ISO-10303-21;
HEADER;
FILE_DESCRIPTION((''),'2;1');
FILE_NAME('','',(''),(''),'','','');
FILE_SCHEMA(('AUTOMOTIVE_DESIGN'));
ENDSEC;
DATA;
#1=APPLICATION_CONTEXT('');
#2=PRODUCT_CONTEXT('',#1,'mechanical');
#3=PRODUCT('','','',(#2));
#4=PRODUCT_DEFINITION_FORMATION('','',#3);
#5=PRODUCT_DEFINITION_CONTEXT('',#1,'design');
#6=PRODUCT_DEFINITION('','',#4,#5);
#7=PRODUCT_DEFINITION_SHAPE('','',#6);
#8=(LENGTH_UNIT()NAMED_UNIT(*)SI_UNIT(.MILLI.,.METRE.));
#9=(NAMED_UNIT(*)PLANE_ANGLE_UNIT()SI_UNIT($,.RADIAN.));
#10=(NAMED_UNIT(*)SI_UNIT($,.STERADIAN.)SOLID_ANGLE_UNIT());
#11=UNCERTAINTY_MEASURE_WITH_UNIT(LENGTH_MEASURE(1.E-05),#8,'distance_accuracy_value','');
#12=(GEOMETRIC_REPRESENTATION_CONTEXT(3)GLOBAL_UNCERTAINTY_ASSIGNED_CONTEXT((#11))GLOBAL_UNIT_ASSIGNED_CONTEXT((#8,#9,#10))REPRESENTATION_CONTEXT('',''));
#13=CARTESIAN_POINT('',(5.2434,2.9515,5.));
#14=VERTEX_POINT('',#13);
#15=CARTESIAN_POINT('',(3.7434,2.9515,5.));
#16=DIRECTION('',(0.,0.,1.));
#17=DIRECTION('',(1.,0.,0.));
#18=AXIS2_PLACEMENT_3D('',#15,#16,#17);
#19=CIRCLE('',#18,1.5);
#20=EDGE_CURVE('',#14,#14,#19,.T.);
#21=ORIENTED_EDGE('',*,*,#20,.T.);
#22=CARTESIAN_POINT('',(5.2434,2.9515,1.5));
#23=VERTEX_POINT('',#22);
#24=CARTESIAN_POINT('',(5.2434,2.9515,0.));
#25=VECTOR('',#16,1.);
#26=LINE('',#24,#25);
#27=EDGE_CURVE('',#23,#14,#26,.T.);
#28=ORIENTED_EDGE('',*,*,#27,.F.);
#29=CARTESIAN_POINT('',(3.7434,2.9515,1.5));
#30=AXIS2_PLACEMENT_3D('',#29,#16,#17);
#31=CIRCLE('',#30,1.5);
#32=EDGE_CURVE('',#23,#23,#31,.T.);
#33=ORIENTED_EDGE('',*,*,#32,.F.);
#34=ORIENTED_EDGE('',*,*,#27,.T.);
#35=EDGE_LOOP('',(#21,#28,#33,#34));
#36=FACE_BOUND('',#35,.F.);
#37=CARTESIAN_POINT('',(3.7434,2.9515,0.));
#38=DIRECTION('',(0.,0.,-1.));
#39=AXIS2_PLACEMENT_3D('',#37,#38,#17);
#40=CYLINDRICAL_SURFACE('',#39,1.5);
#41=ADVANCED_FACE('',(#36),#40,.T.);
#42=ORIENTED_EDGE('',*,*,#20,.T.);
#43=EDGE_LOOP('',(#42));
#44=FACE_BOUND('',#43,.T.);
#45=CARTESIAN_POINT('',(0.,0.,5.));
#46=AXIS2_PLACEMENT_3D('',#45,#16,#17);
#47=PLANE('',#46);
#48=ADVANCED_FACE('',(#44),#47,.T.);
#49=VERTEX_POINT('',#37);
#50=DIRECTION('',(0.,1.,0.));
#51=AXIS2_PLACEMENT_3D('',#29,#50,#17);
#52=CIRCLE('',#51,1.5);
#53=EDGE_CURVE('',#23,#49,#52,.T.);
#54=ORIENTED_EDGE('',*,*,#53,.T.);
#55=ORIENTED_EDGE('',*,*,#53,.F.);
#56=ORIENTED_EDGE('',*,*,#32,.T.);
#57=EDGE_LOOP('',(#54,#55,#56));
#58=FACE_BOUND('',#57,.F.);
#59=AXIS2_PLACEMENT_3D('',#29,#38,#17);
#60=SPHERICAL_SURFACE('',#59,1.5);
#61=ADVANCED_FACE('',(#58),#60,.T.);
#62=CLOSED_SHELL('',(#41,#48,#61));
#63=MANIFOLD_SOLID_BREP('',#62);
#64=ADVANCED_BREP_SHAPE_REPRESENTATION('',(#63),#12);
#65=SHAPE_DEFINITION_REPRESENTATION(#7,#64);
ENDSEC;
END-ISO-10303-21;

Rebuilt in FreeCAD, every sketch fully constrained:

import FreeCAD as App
import Part
import Sketcher
from FreeCAD import Vector


def edges_at(feature, points):
    """Names of the edges that pass closest to the given points."""
    edges = feature.Shape.Edges
    near = lambda p: min(range(len(edges)), key=lambda i: edges[i].distToShape(Part.Vertex(*p))[0])
    return sorted({f"Edge{near(p) + 1}" for p in points})

doc = App.newDocument("Part")
params = doc.addObject("Spreadsheet::Sheet", "Params")
for row, (alias, value) in enumerate([
    ("sketch1_diameter", "3 mm"),
    ("pad1_length", "5 mm"),
    ("fillet_radius", "1.5 mm"),
], start=1):
    params.set(f"A{row}", alias)
    params.set(f"B{row}", "=" + value)
    params.setAlias(f"B{row}", alias)

body = doc.addObject("PartDesign::Body", "Body")

# Sketch on XY plane
sketch1 = body.newObject("Sketcher::SketchObject", "Sketch")
sketch1.AttachmentSupport = (doc.getObject("XY_Plane"), [""])
sketch1.MapMode = "FlatFace"
sketch1.addGeometry(Part.Circle(Vector(3.7, 3, 0), Vector(0, 0, 1), 1.5), False)
sketch1.addConstraint(Sketcher.Constraint("Diameter", 0, 3.0))
sketch1.addConstraint(Sketcher.Constraint("DistanceX", -1, 1, 0, 3, 3.7434))
sketch1.addConstraint(Sketcher.Constraint("DistanceY", -1, 1, 0, 3, 2.9515))
sketch1.setExpression("Constraints[0]", "Params.sketch1_diameter")
pad1 = body.newObject("PartDesign::Pad", "Pad")
pad1.Profile = sketch1
pad1.setExpression("Length", "Params.pad1_length")
doc.recompute()

fillet = body.newObject("PartDesign::Fillet", "Fillet")
fillet.Base = (pad1, edges_at(pad1, [(2.243, 2.951, 0)]))
fillet.setExpression("Radius", "Params.fillet_radius")

doc.recompute()
